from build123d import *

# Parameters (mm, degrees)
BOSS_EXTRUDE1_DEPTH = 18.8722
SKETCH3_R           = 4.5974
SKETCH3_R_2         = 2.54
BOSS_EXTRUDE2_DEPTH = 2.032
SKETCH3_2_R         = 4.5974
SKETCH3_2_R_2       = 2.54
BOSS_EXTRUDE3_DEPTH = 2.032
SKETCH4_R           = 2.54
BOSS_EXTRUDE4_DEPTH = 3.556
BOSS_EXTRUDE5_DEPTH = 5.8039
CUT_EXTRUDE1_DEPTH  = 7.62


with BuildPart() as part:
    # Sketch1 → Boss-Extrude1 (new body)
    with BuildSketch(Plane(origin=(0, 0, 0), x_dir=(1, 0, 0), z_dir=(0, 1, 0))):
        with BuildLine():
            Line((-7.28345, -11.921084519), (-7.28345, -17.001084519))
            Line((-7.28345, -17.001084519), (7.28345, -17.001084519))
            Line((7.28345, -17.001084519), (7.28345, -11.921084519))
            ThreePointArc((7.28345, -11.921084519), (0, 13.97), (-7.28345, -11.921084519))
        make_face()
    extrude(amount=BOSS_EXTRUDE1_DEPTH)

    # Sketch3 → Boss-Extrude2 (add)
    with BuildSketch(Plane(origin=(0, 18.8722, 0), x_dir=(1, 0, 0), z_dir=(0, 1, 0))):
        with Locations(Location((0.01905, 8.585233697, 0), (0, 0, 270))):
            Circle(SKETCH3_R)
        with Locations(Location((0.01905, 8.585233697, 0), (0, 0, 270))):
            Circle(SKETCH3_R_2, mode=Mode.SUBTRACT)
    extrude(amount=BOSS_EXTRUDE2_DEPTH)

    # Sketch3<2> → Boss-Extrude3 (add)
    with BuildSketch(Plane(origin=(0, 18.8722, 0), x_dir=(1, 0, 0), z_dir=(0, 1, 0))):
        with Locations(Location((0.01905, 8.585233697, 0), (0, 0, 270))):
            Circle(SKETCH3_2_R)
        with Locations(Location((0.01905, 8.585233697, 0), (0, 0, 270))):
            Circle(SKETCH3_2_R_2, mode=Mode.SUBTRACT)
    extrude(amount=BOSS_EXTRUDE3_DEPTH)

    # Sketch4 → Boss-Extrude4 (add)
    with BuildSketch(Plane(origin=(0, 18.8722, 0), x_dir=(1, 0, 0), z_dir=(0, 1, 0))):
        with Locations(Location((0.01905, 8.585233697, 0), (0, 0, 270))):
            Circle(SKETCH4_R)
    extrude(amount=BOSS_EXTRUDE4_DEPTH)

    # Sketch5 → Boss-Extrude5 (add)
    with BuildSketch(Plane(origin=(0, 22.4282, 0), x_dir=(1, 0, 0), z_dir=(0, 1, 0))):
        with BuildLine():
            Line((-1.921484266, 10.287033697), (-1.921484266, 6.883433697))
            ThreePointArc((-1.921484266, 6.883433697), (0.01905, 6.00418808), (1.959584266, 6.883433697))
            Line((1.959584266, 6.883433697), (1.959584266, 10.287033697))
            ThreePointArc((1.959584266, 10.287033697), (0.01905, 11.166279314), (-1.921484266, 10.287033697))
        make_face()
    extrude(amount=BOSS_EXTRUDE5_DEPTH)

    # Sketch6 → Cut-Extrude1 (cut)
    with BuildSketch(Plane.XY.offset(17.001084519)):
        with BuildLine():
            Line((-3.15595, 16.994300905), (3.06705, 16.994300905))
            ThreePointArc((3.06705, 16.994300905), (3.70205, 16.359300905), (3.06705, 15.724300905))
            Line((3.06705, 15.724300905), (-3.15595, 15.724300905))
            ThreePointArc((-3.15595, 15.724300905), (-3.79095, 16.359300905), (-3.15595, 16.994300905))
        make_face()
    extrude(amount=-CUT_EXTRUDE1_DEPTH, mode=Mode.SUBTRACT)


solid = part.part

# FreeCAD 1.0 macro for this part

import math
import FreeCAD as App
import Part
import Sketcher
Q = App.Units.Quantity

doc = App.newDocument("Part")
params = doc.addObject("Spreadsheet::Sheet", "Params")
for row, (alias, value) in enumerate([
    ("sketch1_radius", "0.55 in"),
    ("sketch1_height", "0.2 in"),
    ("pad1_length", "0.743 in"),
    ("sketch2_diameter", "0.2 in"),
    ("sketch2_diameter2", "0.362 in"),
    ("pad2_length", "0.08 in"),
    ("sketch3_diameter", "0.2 in"),
    ("sketch3_diameter2", "0.362 in"),
    ("pad3_length", "0.08 in"),
    ("sketch4_diameter", "0.2 in"),
    ("pad4_length", "0.14 in"),
    ("sketch5_height", "0.134 in"),
    ("pad5_length", "0.2285 in"),
    ("sketch6_radius", "0.025 in"),
    ("sketch6_width", "0.245 in"),
    ("pocket1_length", "0.3 in"),
], start=1):
    params.set(f"A{row}", alias)
    params.set(f"B{row}", "=" + value)
    params.setAlias(f"B{row}", alias)

body = doc.addObject("PartDesign::Body", "Body")

sketch1 = doc.addObject("Sketcher::SketchObject", "Sketch")
body.addObject(sketch1)
sketch1.AttachmentSupport = (doc.XZ_Plane, [""])
sketch1.MapMode = "FlatFace"
sketch1.addGeometry(Part.LineSegment(App.Vector(-7, 12, 0), App.Vector(-7, 17, 0)), False)
sketch1.addGeometry(Part.LineSegment(App.Vector(-7, 17, 0), App.Vector(7, 17, 0)), False)
sketch1.addGeometry(Part.LineSegment(App.Vector(7, 17, 0), App.Vector(7, 12, 0)), False)
sketch1.addGeometry(Part.ArcOfCircle(Part.Circle(App.Vector(0, 0, 0), App.Vector(0, 0, 1), 14), math.radians(121), math.radians(419)), False)
sketch1.addConstraint(Sketcher.Constraint("Coincident", 0, 2, 1, 1))
sketch1.addConstraint(Sketcher.Constraint("Coincident", 1, 2, 2, 1))
sketch1.addConstraint(Sketcher.Constraint("Coincident", 2, 2, 3, 2))
sketch1.addConstraint(Sketcher.Constraint("Coincident", 3, 1, 0, 1))
sketch1.addConstraint(Sketcher.Constraint("Vertical", 0))
sketch1.addConstraint(Sketcher.Constraint("Horizontal", 1))
sketch1.addConstraint(Sketcher.Constraint("Vertical", 2))
sketch1.addConstraint(Sketcher.Constraint("Coincident", 3, 3, -1, 1))
sketch1.addConstraint(Sketcher.Constraint("Horizontal", 2, 2, 3, 1))
sketch1.addConstraint(Sketcher.Constraint("Radius", 3, Q("0.55 in")))
sketch1.addConstraint(Sketcher.Constraint("DistanceY", 0, 1, 0, 2, Q("0.2 in")))
sketch1.addConstraint(Sketcher.Constraint("DistanceX", 1, 1, 1, 2, Q("0.5735 in")))
sketch1.setExpression("Constraints[9]", "Params.sketch1_radius")
sketch1.setExpression("Constraints[10]", "Params.sketch1_height")
pad1 = doc.addObject("PartDesign::Pad", "Pad")
body.addObject(pad1)
pad1.Profile = sketch1
pad1.setExpression("Length", "Params.pad1_length")
pad1.Reversed = True

sketch2 = doc.addObject("Sketcher::SketchObject", "Sketch001")
body.addObject(sketch2)
sketch2.AttachmentSupport = (doc.XZ_Plane, [""])
sketch2.MapMode = "FlatFace"
sketch2.AttachmentOffset = App.Placement(App.Vector(0, 0, -0.743 * 25.4), App.Rotation())
sketch2.addGeometry(Part.Circle(App.Vector(0, -8.6, 0), App.Vector(0, 0, 1), 4.6), False)
sketch2.addGeometry(Part.Circle(App.Vector(0, -8.6, 0), App.Vector(0, 0, 1), 2.5), False)
sketch2.addConstraint(Sketcher.Constraint("Coincident", 1, 3, 0, 3))
sketch2.addConstraint(Sketcher.Constraint("Diameter", 1, Q("0.2 in")))
sketch2.addConstraint(Sketcher.Constraint("Diameter", 0, Q("0.362 in")))
sketch2.addConstraint(Sketcher.Constraint("DistanceX", -1, 1, 0, 3, 0.01905))
sketch2.addConstraint(Sketcher.Constraint("DistanceY", 0, 3, -1, 1, 8.585234))
sketch2.setExpression("Constraints[1]", "Params.sketch2_diameter")
sketch2.setExpression("Constraints[2]", "Params.sketch2_diameter2")
pad2 = doc.addObject("PartDesign::Pad", "Pad001")
body.addObject(pad2)
pad2.Profile = sketch2
pad2.setExpression("Length", "Params.pad2_length")
pad2.Reversed = True

sketch3 = doc.addObject("Sketcher::SketchObject", "Sketch002")
body.addObject(sketch3)
sketch3.AttachmentSupport = (doc.XZ_Plane, [""])
sketch3.MapMode = "FlatFace"
sketch3.AttachmentOffset = App.Placement(App.Vector(0, 0, -0.743 * 25.4), App.Rotation())
sketch3.addGeometry(Part.Circle(App.Vector(0, -8.6, 0), App.Vector(0, 0, 1), 4.6), False)
sketch3.addGeometry(Part.Circle(App.Vector(0, -8.6, 0), App.Vector(0, 0, 1), 2.5), False)
sketch3.addConstraint(Sketcher.Constraint("Coincident", 1, 3, 0, 3))
sketch3.addConstraint(Sketcher.Constraint("Diameter", 1, Q("0.2 in")))
sketch3.addConstraint(Sketcher.Constraint("Diameter", 0, Q("0.362 in")))
sketch3.addConstraint(Sketcher.Constraint("DistanceX", -1, 1, 0, 3, 0.01905))
sketch3.addConstraint(Sketcher.Constraint("DistanceY", 0, 3, -1, 1, 8.585234))
sketch3.setExpression("Constraints[1]", "Params.sketch3_diameter")
sketch3.setExpression("Constraints[2]", "Params.sketch3_diameter2")
pad3 = doc.addObject("PartDesign::Pad", "Pad002")
body.addObject(pad3)
pad3.Profile = sketch3
pad3.setExpression("Length", "Params.pad3_length")
pad3.Reversed = True

sketch4 = doc.addObject("Sketcher::SketchObject", "Sketch003")
body.addObject(sketch4)
sketch4.AttachmentSupport = (doc.XZ_Plane, [""])
sketch4.MapMode = "FlatFace"
sketch4.AttachmentOffset = App.Placement(App.Vector(0, 0, -0.743 * 25.4), App.Rotation())
sketch4.addGeometry(Part.Circle(App.Vector(0, -8.6, 0), App.Vector(0, 0, 1), 2.5), False)
sketch4.addConstraint(Sketcher.Constraint("Diameter", 0, Q("0.2 in")))
sketch4.addConstraint(Sketcher.Constraint("DistanceX", -1, 1, 0, 3, 0.01905))
sketch4.addConstraint(Sketcher.Constraint("DistanceY", 0, 3, -1, 1, 8.585234))
sketch4.setExpression("Constraints[0]", "Params.sketch4_diameter")
pad4 = doc.addObject("PartDesign::Pad", "Pad003")
body.addObject(pad4)
pad4.Profile = sketch4
pad4.setExpression("Length", "Params.pad4_length")
pad4.Reversed = True

sketch5 = doc.addObject("Sketcher::SketchObject", "Sketch004")
body.addObject(sketch5)
sketch5.AttachmentSupport = (doc.XZ_Plane, [""])
sketch5.MapMode = "FlatFace"
sketch5.AttachmentOffset = App.Placement(App.Vector(0, 0, -0.883 * 25.4), App.Rotation())
sketch5.addGeometry(Part.LineSegment(App.Vector(-1.9, -10.3, 0), App.Vector(-1.9, -6.9, 0)), False)
sketch5.addGeometry(Part.ArcOfCircle(Part.Circle(App.Vector(0, -8.6, 0), App.Vector(0, 0, 1), 2.6), math.radians(41), math.radians(139)), False)
sketch5.addGeometry(Part.LineSegment(App.Vector(2, -6.9, 0), App.Vector(2, -10.3, 0)), False)
sketch5.addGeometry(Part.ArcOfCircle(Part.Circle(App.Vector(0, -8.6, 0), App.Vector(0, 0, 1), 2.6), math.radians(-139), math.radians(-41)), False)
sketch5.addConstraint(Sketcher.Constraint("Coincident", 0, 2, 1, 2))
sketch5.addConstraint(Sketcher.Constraint("Coincident", 1, 1, 2, 1))
sketch5.addConstraint(Sketcher.Constraint("Coincident", 2, 2, 3, 2))
sketch5.addConstraint(Sketcher.Constraint("Coincident", 3, 1, 0, 1))
sketch5.addConstraint(Sketcher.Constraint("Vertical", 0))
sketch5.addConstraint(Sketcher.Constraint("Vertical", 2))
sketch5.addConstraint(Sketcher.Constraint("Coincident", 3, 3, 1, 3))
sketch5.addConstraint(Sketcher.Constraint("Equal", 1, 3))
sketch5.addConstraint(Sketcher.Constraint("Horizontal", 0, 2, 1, 1))
sketch5.addConstraint(Sketcher.Constraint("DistanceY", 0, 1, 0, 2, Q("0.134 in")))
sketch5.addConstraint(Sketcher.Constraint("Radius", 1, 2.581046))
sketch5.addConstraint(Sketcher.Constraint("DistanceX", -1, 1, 1, 3, 0.01905))
sketch5.addConstraint(Sketcher.Constraint("DistanceY", 1, 3, -1, 1, 8.585234))
sketch5.setExpression("Constraints[9]", "Params.sketch5_height")
pad5 = doc.addObject("PartDesign::Pad", "Pad004")
body.addObject(pad5)
pad5.Profile = sketch5
pad5.setExpression("Length", "Params.pad5_length")
pad5.Reversed = True

sketch6 = doc.addObject("Sketcher::SketchObject", "Sketch005")
body.addObject(sketch6)
sketch6.AttachmentSupport = (doc.XY_Plane, [""])
sketch6.MapMode = "FlatFace"
sketch6.AttachmentOffset = App.Placement(App.Vector(0, 0, 17.001085), App.Rotation())
sketch6.addGeometry(Part.LineSegment(App.Vector(3.1, 17, 0), App.Vector(-3.2, 17, 0)), False)
sketch6.addGeometry(Part.ArcOfCircle(Part.Circle(App.Vector(-3.2, 16.4, 0), App.Vector(0, 0, 1), 0.6), math.radians(90), math.radians(270)), False)
sketch6.addGeometry(Part.LineSegment(App.Vector(-3.2, 15.7, 0), App.Vector(3.1, 15.7, 0)), False)
sketch6.addGeometry(Part.ArcOfCircle(Part.Circle(App.Vector(3.1, 16.4, 0), App.Vector(0, 0, 1), 0.6), math.radians(-90), math.radians(90)), False)
sketch6.addConstraint(Sketcher.Constraint("Tangent", 0, 2, 1, 1))
sketch6.addConstraint(Sketcher.Constraint("Tangent", 1, 2, 2, 1))
sketch6.addConstraint(Sketcher.Constraint("Tangent", 2, 2, 3, 1))
sketch6.addConstraint(Sketcher.Constraint("Tangent", 3, 2, 0, 1))
sketch6.addConstraint(Sketcher.Constraint("Horizontal", 0))
sketch6.addConstraint(Sketcher.Constraint("Horizontal", 2))
sketch6.addConstraint(Sketcher.Constraint("Radius", 1, Q("0.025 in")))
sketch6.addConstraint(Sketcher.Constraint("DistanceX", 0, 2, 0, 1, Q("0.245 in")))
sketch6.addConstraint(Sketcher.Constraint("DistanceY", -1, 1, 1, 3, 16.359301))
sketch6.addConstraint(Sketcher.Constraint("DistanceX", 1, 3, -1, 1, 3.15595))
sketch6.setExpression("Constraints[6]", "Params.sketch6_radius")
sketch6.setExpression("Constraints[7]", "Params.sketch6_width")
pocket1 = doc.addObject("PartDesign::Pocket", "Pocket")
body.addObject(pocket1)
pocket1.Profile = sketch6
pocket1.setExpression("Length", "Params.pocket1_length")

doc.recompute()
